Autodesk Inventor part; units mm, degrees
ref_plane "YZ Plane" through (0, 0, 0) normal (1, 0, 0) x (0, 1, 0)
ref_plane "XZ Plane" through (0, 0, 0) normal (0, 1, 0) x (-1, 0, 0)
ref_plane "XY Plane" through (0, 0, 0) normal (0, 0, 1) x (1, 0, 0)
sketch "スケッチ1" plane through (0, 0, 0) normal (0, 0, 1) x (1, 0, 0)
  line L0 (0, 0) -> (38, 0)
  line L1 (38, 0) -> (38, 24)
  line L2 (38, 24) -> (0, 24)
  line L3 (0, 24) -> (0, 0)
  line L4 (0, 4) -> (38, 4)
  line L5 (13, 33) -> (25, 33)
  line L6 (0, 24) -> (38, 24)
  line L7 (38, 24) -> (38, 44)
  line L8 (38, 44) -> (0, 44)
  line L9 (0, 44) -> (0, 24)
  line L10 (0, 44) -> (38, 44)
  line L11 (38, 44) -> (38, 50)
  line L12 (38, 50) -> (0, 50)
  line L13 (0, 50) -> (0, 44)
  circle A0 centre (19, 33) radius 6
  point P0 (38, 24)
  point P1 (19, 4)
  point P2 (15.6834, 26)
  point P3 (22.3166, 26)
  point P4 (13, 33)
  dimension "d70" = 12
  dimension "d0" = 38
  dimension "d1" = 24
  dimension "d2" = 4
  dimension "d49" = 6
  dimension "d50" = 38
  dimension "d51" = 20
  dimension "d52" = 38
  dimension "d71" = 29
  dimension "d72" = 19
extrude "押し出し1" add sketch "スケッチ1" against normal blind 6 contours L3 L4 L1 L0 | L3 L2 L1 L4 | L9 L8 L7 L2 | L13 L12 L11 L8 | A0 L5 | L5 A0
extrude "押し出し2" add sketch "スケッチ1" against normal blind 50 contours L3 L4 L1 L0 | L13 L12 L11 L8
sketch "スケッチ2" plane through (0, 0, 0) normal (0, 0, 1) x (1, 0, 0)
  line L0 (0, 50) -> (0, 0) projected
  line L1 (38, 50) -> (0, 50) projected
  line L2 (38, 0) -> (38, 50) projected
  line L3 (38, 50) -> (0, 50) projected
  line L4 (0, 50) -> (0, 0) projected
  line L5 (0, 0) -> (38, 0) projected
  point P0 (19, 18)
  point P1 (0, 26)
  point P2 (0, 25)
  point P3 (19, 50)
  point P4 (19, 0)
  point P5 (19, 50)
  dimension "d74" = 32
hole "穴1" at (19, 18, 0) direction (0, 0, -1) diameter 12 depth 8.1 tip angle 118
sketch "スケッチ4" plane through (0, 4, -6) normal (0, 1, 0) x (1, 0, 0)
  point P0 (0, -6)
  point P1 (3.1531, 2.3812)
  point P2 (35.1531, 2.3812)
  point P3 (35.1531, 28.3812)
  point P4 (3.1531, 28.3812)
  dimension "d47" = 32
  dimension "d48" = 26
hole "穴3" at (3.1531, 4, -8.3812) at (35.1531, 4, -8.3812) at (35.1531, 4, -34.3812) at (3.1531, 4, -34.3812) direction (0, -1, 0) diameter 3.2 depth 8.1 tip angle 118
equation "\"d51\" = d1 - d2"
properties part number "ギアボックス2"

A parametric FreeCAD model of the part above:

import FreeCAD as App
import Part
import Sketcher
from FreeCAD import Vector
Q = App.Units.Quantity


def add_polygon(sketch, points):
    """Adds a closed chain of lines whose ends are joined by coincident constraints."""
    first, n = sketch.GeometryCount, len(points)
    for a, b in zip(points, points[1:] + points[:1]):
        sketch.addGeometry(Part.LineSegment(App.Vector(*a, 0), App.Vector(*b, 0)), False)
    for i in range(n):
        sketch.addConstraint(Sketcher.Constraint("Coincident", first + i, 2, first + (i + 1) % n, 1))

doc = App.newDocument("Part")
params = doc.addObject("Spreadsheet::Sheet", "Params")
for row, (alias, value) in enumerate([
    ("sketch1_width", "38 mm"),
    ("sketch1_height", "50 mm"),
    ("pad1_length", "6 mm"),
    ("sketch2_width", "38 mm"),
    ("sketch2_height", "4 mm"),
    ("sketch2_height2", "6 mm"),
    ("pad2_length", "50 mm"),
    ("sketch3_diameter", "12 mm"),
    ("hole_diameter", "12 mm"),
    ("hole_depth", "8.1 mm"),
    ("sketch4_diameter", "3.2 mm"),
    ("hole2_diameter", "3.2 mm"),
    ("hole2_depth", "8.1 mm"),
], start=1):
    params.set(f"A{row}", alias)
    params.set(f"B{row}", "=" + value)
    params.setAlias(f"B{row}", alias)

body = doc.addObject("PartDesign::Body", "Body")

# Sketch on XY plane
sketch1 = body.newObject("Sketcher::SketchObject", "Sketch")
sketch1.AttachmentSupport = (doc.getObject("XY_Plane"), [""])
sketch1.MapMode = "FlatFace"
add_polygon(sketch1, [(0, 0), (38, 0), (38, 50), (0, 50)])  # lines 0-3
sketch1.addConstraint(Sketcher.Constraint("Horizontal", 0))
sketch1.addConstraint(Sketcher.Constraint("Vertical", 1))
sketch1.addConstraint(Sketcher.Constraint("Horizontal", 2))
sketch1.addConstraint(Sketcher.Constraint("Vertical", 3))
sketch1.addConstraint(Sketcher.Constraint("Coincident", 3, 2, -1, 1))
sketch1.addConstraint(Sketcher.Constraint("DistanceX", 0, 1, 0, 2, Q("38 mm")))
sketch1.addConstraint(Sketcher.Constraint("DistanceY", 1, 1, 1, 2, Q("50 mm")))
sketch1.setExpression("Constraints[9]", "Params.sketch1_width")
sketch1.setExpression("Constraints[10]", "Params.sketch1_height")
pad1 = body.newObject("PartDesign::Pad", "Pad")
pad1.Profile = sketch1
pad1.setExpression("Length", "Params.pad1_length")
pad1.Reversed = True

# Sketch on XY plane
sketch2 = body.newObject("Sketcher::SketchObject", "Sketch001")
sketch2.AttachmentSupport = (doc.getObject("XY_Plane"), [""])
sketch2.MapMode = "FlatFace"
add_polygon(sketch2, [(0, 4), (0, 0), (38, 0), (38, 4)])  # lines 0-3
add_polygon(sketch2, [(0, 50), (0, 44), (38, 44), (38, 50)])  # lines 4-7
sketch2.addConstraint(Sketcher.Constraint("Vertical", 0))
sketch2.addConstraint(Sketcher.Constraint("Horizontal", 1))
sketch2.addConstraint(Sketcher.Constraint("Vertical", 2))
sketch2.addConstraint(Sketcher.Constraint("Horizontal", 3))
sketch2.addConstraint(Sketcher.Constraint("Vertical", 4))
sketch2.addConstraint(Sketcher.Constraint("Horizontal", 5))
sketch2.addConstraint(Sketcher.Constraint("Vertical", 6))
sketch2.addConstraint(Sketcher.Constraint("Horizontal", 7))
sketch2.addConstraint(Sketcher.Constraint("Coincident", 0, 2, -1, 1))
sketch2.addConstraint(Sketcher.Constraint("PointOnObject", 4, 2, -2))
sketch2.addConstraint(Sketcher.Constraint("Vertical", 2, 2, 5, 2))
sketch2.addConstraint(Sketcher.Constraint("DistanceX", 1, 1, 1, 2, Q("38 mm")))
sketch2.addConstraint(Sketcher.Constraint("DistanceY", 0, 2, 0, 1, Q("4 mm")))
sketch2.addConstraint(Sketcher.Constraint("DistanceY", 4, 2, 4, 1, Q("6 mm")))
sketch2.addConstraint(Sketcher.Constraint("DistanceY", -1, 1, 4, 2, Q("44 mm")))
sketch2.setExpression("Constraints[19]", "Params.sketch2_width")
sketch2.setExpression("Constraints[20]", "Params.sketch2_height")
sketch2.setExpression("Constraints[21]", "Params.sketch2_height2")
pad2 = body.newObject("PartDesign::Pad", "Pad001")
pad2.Profile = sketch2
pad2.setExpression("Length", "Params.pad2_length")
pad2.Reversed = True

# Sketch on XY plane
sketch3 = body.newObject("Sketcher::SketchObject", "Sketch002")
sketch3.AttachmentSupport = (doc.getObject("XY_Plane"), [""])
sketch3.MapMode = "FlatFace"
sketch3.addGeometry(Part.Circle(Vector(19, 18, 0), Vector(0, 0, 1), 6), False)
sketch3.addConstraint(Sketcher.Constraint("Diameter", 0, Q("12 mm")))
sketch3.addConstraint(Sketcher.Constraint("DistanceX", -1, 1, 0, 3, Q("19 mm")))
sketch3.addConstraint(Sketcher.Constraint("DistanceY", -1, 1, 0, 3, Q("18 mm")))
sketch3.setExpression("Constraints[0]", "Params.sketch3_diameter")
doc.recompute()
hole = body.newObject("PartDesign::Hole", "Hole")
hole.Profile = sketch3
hole.ThreadType = "None"
hole.setExpression("Diameter", "Params.hole_diameter")
hole.DepthType = "Dimension"
hole.setExpression("Depth", "Params.hole_depth")
hole.DrillPoint = "Angled"
hole.DrillPointAngle = 118

# Sketch on XZ plane
sketch4 = body.newObject("Sketcher::SketchObject", "Sketch003")
sketch4.AttachmentSupport = (doc.getObject("XZ_Plane"), [""])
sketch4.MapMode = "FlatFace"
sketch4.AttachmentOffset = App.Placement(Vector(0, 0, -4), App.Rotation())
sketch4.addGeometry(Part.Circle(Vector(3.2, -8.4, 0), Vector(0, 0, 1), 1.6), False)
sketch4.addGeometry(Part.Circle(Vector(35.2, -8.4, 0), Vector(0, 0, 1), 1.6), False)
sketch4.addGeometry(Part.Circle(Vector(35.2, -34.4, 0), Vector(0, 0, 1), 1.6), False)
sketch4.addGeometry(Part.Circle(Vector(3.2, -34.4, 0), Vector(0, 0, 1), 1.6), False)
sketch4.addConstraint(Sketcher.Constraint("Equal", 0, 1))
sketch4.addConstraint(Sketcher.Constraint("Equal", 1, 2))
sketch4.addConstraint(Sketcher.Constraint("Equal", 2, 3))
sketch4.addConstraint(Sketcher.Constraint("Horizontal", 0, 3, 1, 3))
sketch4.addConstraint(Sketcher.Constraint("Horizontal", 2, 3, 3, 3))
sketch4.addConstraint(Sketcher.Constraint("Vertical", 1, 3, 2, 3))
sketch4.addConstraint(Sketcher.Constraint("Vertical", 0, 3, 3, 3))
sketch4.addConstraint(Sketcher.Constraint("Diameter", 0, Q("3.2 mm")))
sketch4.addConstraint(Sketcher.Constraint("DistanceX", 0, 3, 1, 3, Q("32 mm")))
sketch4.addConstraint(Sketcher.Constraint("DistanceY", 2, 3, 1, 3, Q("26 mm")))
sketch4.addConstraint(Sketcher.Constraint("DistanceX", -1, 1, 0, 3, Q("3.153 mm")))
sketch4.addConstraint(Sketcher.Constraint("DistanceY", 0, 3, -1, 1, Q("8.3812 mm")))
sketch4.setExpression("Constraints[7]", "Params.sketch4_diameter")
doc.recompute()
hole2 = body.newObject("PartDesign::Hole", "Hole001")
hole2.Profile = sketch4
hole2.ThreadType = "None"
hole2.setExpression("Diameter", "Params.hole2_diameter")
hole2.DepthType = "Dimension"
hole2.setExpression("Depth", "Params.hole2_depth")
hole2.DrillPoint = "Angled"
hole2.DrillPointAngle = 118
hole2.Reversed = True

doc.recompute()
